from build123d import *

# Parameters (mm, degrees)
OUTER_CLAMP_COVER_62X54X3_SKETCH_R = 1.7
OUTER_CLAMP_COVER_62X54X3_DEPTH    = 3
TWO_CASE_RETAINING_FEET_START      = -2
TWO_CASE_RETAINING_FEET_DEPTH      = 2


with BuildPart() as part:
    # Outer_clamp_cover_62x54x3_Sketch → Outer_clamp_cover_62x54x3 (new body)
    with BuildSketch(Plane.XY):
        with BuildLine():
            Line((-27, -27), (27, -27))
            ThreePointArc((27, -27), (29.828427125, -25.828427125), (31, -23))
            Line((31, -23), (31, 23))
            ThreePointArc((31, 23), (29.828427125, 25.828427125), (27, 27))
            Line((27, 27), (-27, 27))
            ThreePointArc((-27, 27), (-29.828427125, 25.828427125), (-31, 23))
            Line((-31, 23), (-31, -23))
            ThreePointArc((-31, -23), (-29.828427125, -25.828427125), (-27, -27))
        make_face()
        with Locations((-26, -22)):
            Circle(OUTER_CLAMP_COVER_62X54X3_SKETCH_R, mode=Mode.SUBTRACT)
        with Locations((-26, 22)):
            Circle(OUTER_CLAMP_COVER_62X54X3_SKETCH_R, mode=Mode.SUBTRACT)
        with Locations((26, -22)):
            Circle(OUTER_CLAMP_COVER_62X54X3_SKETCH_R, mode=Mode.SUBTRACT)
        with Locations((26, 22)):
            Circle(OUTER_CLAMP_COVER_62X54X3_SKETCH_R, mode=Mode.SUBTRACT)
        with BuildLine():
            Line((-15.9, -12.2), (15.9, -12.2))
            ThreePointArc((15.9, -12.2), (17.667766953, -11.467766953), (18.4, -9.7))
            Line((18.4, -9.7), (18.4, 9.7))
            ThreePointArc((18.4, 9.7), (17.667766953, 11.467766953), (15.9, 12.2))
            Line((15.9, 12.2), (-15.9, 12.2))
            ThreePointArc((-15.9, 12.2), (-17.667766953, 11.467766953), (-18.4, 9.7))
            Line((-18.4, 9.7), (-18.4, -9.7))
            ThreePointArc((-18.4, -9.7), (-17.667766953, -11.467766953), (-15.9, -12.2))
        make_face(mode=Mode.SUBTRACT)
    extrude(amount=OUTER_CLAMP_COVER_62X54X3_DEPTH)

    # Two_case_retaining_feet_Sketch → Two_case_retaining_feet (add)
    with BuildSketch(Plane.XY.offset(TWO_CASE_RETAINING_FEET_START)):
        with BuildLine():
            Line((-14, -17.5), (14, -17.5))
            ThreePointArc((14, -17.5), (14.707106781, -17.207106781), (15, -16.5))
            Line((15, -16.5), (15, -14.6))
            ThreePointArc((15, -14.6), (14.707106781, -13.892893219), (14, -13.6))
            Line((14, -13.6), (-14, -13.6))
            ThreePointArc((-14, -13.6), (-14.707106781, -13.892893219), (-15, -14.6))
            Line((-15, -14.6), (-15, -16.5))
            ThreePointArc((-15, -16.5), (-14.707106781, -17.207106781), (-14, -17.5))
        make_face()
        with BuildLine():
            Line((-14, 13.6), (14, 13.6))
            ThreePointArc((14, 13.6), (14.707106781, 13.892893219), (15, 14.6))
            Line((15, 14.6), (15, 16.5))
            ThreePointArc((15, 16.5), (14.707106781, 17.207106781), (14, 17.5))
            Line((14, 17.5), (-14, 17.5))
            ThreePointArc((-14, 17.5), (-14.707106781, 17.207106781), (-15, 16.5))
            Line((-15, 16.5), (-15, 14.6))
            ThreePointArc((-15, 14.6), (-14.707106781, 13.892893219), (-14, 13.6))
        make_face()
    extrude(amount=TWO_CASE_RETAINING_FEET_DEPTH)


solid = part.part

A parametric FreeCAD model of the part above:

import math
import FreeCAD as App
import Part
import Sketcher

V = App.Vector

doc = App.newDocument("Part")
params = doc.addObject("Spreadsheet::Sheet", "Params")
for row, (alias, value) in enumerate([
    ("sketch1_radius", "4 mm"),
    ("sketch1_diameter", "3.4 mm"),
    ("sketch1_radius2", "2.5 mm"),
    ("sketch1_width", "54 mm"),
    ("sketch1_height", "46 mm"),
    ("pad1_length", "3 mm"),
    ("sketch2_radius", "1 mm"),
    ("sketch2_width", "28 mm"),
    ("sketch2_height", "1.9 mm"),
    ("pad2_length", "2 mm"),
], start=1):
    params.set(f"A{row}", alias)
    params.set(f"B{row}", "=" + value)
    params.setAlias(f"B{row}", alias)

body = doc.addObject("PartDesign::Body", "Body")

# Sketch on XY plane
sketch1 = doc.addObject("Sketcher::SketchObject", "Sketch")
body.addObject(sketch1)
sketch1.AttachmentSupport = (doc.XY_Plane, [""])
sketch1.MapMode = "FlatFace"
sketch1.addGeometry(Part.LineSegment(V(-27, -27, 0), V(27, -27, 0)), False)
sketch1.addGeometry(Part.ArcOfCircle(Part.Circle(V(27, -23, 0), V(0, 0, 1), 4), math.radians(-90), math.radians(0)), False)
sketch1.addGeometry(Part.LineSegment(V(31, -23, 0), V(31, 23, 0)), False)
sketch1.addGeometry(Part.ArcOfCircle(Part.Circle(V(27, 23, 0), V(0, 0, 1), 4), math.radians(0), math.radians(90)), False)
sketch1.addGeometry(Part.LineSegment(V(27, 27, 0), V(-27, 27, 0)), False)
sketch1.addGeometry(Part.ArcOfCircle(Part.Circle(V(-27, 23, 0), V(0, 0, 1), 4), math.radians(90), math.radians(180)), False)
sketch1.addGeometry(Part.LineSegment(V(-31, 23, 0), V(-31, -23, 0)), False)
sketch1.addGeometry(Part.ArcOfCircle(Part.Circle(V(-27, -23, 0), V(0, 0, 1), 4), math.radians(180), math.radians(270)), False)
sketch1.addGeometry(Part.Circle(V(-26, -22, 0), V(0, 0, 1), 1.7), False)
sketch1.addGeometry(Part.LineSegment(V(15.9, -12.2, 0), V(-15.9, -12.2, 0)), False)
sketch1.addGeometry(Part.ArcOfCircle(Part.Circle(V(-15.9, -9.7, 0), V(0, 0, 1), 2.5), math.radians(180), math.radians(270)), False)
sketch1.addGeometry(Part.LineSegment(V(-18.4, -9.7, 0), V(-18.4, 9.7, 0)), False)
sketch1.addGeometry(Part.ArcOfCircle(Part.Circle(V(-15.9, 9.7, 0), V(0, 0, 1), 2.5), math.radians(90), math.radians(180)), False)
sketch1.addGeometry(Part.LineSegment(V(-15.9, 12.2, 0), V(15.9, 12.2, 0)), False)
sketch1.addGeometry(Part.ArcOfCircle(Part.Circle(V(15.9, 9.7, 0), V(0, 0, 1), 2.5), math.radians(0), math.radians(90)), False)
sketch1.addGeometry(Part.LineSegment(V(18.4, 9.7, 0), V(18.4, -9.7, 0)), False)
sketch1.addGeometry(Part.ArcOfCircle(Part.Circle(V(15.9, -9.7, 0), V(0, 0, 1), 2.5), math.radians(-90), math.radians(0)), False)
sketch1.addGeometry(Part.Circle(V(26, -22, 0), V(0, 0, 1), 1.7), False)
sketch1.addGeometry(Part.Circle(V(-26, 22, 0), V(0, 0, 1), 1.7), False)
sketch1.addGeometry(Part.Circle(V(26, 22, 0), V(0, 0, 1), 1.7), False)
sketch1.addConstraint(Sketcher.Constraint("Tangent", 0, 2, 1, 1))
sketch1.addConstraint(Sketcher.Constraint("Tangent", 1, 2, 2, 1))
sketch1.addConstraint(Sketcher.Constraint("Tangent", 2, 2, 3, 1))
sketch1.addConstraint(Sketcher.Constraint("Tangent", 3, 2, 4, 1))
sketch1.addConstraint(Sketcher.Constraint("Tangent", 4, 2, 5, 1))
sketch1.addConstraint(Sketcher.Constraint("Tangent", 5, 2, 6, 1))
sketch1.addConstraint(Sketcher.Constraint("Tangent", 6, 2, 7, 1))
sketch1.addConstraint(Sketcher.Constraint("Tangent", 7, 2, 0, 1))
sketch1.addConstraint(Sketcher.Constraint("Tangent", 9, 2, 10, 2))
sketch1.addConstraint(Sketcher.Constraint("Tangent", 10, 1, 11, 1))
sketch1.addConstraint(Sketcher.Constraint("Tangent", 11, 2, 12, 2))
sketch1.addConstraint(Sketcher.Constraint("Tangent", 12, 1, 13, 1))
sketch1.addConstraint(Sketcher.Constraint("Tangent", 13, 2, 14, 2))
sketch1.addConstraint(Sketcher.Constraint("Tangent", 14, 1, 15, 1))
sketch1.addConstraint(Sketcher.Constraint("Tangent", 15, 2, 16, 2))
sketch1.addConstraint(Sketcher.Constraint("Tangent", 16, 1, 9, 1))
sketch1.addConstraint(Sketcher.Constraint("Horizontal", 0))
sketch1.addConstraint(Sketcher.Constraint("Vertical", 2))
sketch1.addConstraint(Sketcher.Constraint("Horizontal", 4))
sketch1.addConstraint(Sketcher.Constraint("Vertical", 6))
sketch1.addConstraint(Sketcher.Constraint("Horizontal", 9))
sketch1.addConstraint(Sketcher.Constraint("Vertical", 11))
sketch1.addConstraint(Sketcher.Constraint("Horizontal", 13))
sketch1.addConstraint(Sketcher.Constraint("Vertical", 15))
sketch1.addConstraint(Sketcher.Constraint("Equal", 1, 3))
sketch1.addConstraint(Sketcher.Constraint("Equal", 3, 5))
sketch1.addConstraint(Sketcher.Constraint("Equal", 5, 7))
sketch1.addConstraint(Sketcher.Constraint("Equal", 10, 12))
sketch1.addConstraint(Sketcher.Constraint("Equal", 12, 14))
sketch1.addConstraint(Sketcher.Constraint("Equal", 14, 16))
sketch1.addConstraint(Sketcher.Constraint("Equal", 8, 17))
sketch1.addConstraint(Sketcher.Constraint("Equal", 17, 18))
sketch1.addConstraint(Sketcher.Constraint("Equal", 18, 19))
sketch1.addConstraint(Sketcher.Constraint("Symmetric", 1, 3, 5, 3, -1, 1))
sketch1.addConstraint(Sketcher.Constraint("Symmetric", 10, 3, 14, 3, -1, 1))
sketch1.addConstraint(Sketcher.Constraint("Symmetric", 17, 3, 18, 3, -1, 1))
sketch1.addConstraint(Sketcher.Constraint("Symmetric", 8, 3, 19, 3, -1, 1))
sketch1.addConstraint(Sketcher.Constraint("Symmetric", 8, 3, 17, 3, -2))
sketch1.addConstraint(Sketcher.Constraint("Radius", 1, 4.0))
sketch1.addConstraint(Sketcher.Constraint("Diameter", 8, 3.4))
sketch1.addConstraint(Sketcher.Constraint("Radius", 10, 2.5))
sketch1.addConstraint(Sketcher.Constraint("DistanceX", 0, 1, 0, 2, 54.0))
sketch1.addConstraint(Sketcher.Constraint("DistanceY", 2, 1, 2, 2, 46.0))
sketch1.addConstraint(Sketcher.Constraint("DistanceX", 9, 2, 9, 1, 31.8))
sketch1.addConstraint(Sketcher.Constraint("DistanceY", 11, 1, 11, 2, 19.4))
sketch1.addConstraint(Sketcher.Constraint("DistanceX", 8, 3, -1, 1, 26.0))
sketch1.addConstraint(Sketcher.Constraint("DistanceY", 8, 3, -1, 1, 22.0))
sketch1.setExpression("Constraints[38]", "Params.sketch1_radius")
sketch1.setExpression("Constraints[39]", "Params.sketch1_diameter")
sketch1.setExpression("Constraints[40]", "Params.sketch1_radius2")
sketch1.setExpression("Constraints[41]", "Params.sketch1_width")
sketch1.setExpression("Constraints[42]", "Params.sketch1_height")
pad1 = doc.addObject("PartDesign::Pad", "Pad")
body.addObject(pad1)
pad1.Profile = sketch1
pad1.setExpression("Length", "Params.pad1_length")

# Sketch on XY plane
sketch2 = doc.addObject("Sketcher::SketchObject", "Sketch001")
body.addObject(sketch2)
sketch2.AttachmentSupport = (doc.XY_Plane, [""])
sketch2.MapMode = "FlatFace"
sketch2.AttachmentOffset = App.Placement(V(0, 0, -2), App.Rotation())
sketch2.addGeometry(Part.LineSegment(V(-14, -17.5, 0), V(14, -17.5, 0)), False)
sketch2.addGeometry(Part.ArcOfCircle(Part.Circle(V(14, -16.5, 0), V(0, 0, 1), 1), math.radians(-90), math.radians(0)), False)
sketch2.addGeometry(Part.LineSegment(V(15, -16.5, 0), V(15, -14.6, 0)), False)
sketch2.addGeometry(Part.ArcOfCircle(Part.Circle(V(14, -14.6, 0), V(0, 0, 1), 1), math.radians(0), math.radians(90)), False)
sketch2.addGeometry(Part.LineSegment(V(14, -13.6, 0), V(-14, -13.6, 0)), False)
sketch2.addGeometry(Part.ArcOfCircle(Part.Circle(V(-14, -14.6, 0), V(0, 0, 1), 1), math.radians(90), math.radians(180)), False)
sketch2.addGeometry(Part.LineSegment(V(-15, -14.6, 0), V(-15, -16.5, 0)), False)
sketch2.addGeometry(Part.ArcOfCircle(Part.Circle(V(-14, -16.5, 0), V(0, 0, 1), 1), math.radians(-180), math.radians(-90)), False)
sketch2.addGeometry(Part.LineSegment(V(-14, 13.6, 0), V(14, 13.6, 0)), False)
sketch2.addGeometry(Part.ArcOfCircle(Part.Circle(V(14, 14.6, 0), V(0, 0, 1), 1), math.radians(-90), math.radians(0)), False)
sketch2.addGeometry(Part.LineSegment(V(15, 14.6, 0), V(15, 16.5, 0)), False)
sketch2.addGeometry(Part.ArcOfCircle(Part.Circle(V(14, 16.5, 0), V(0, 0, 1), 1), math.radians(0), math.radians(90)), False)
sketch2.addGeometry(Part.LineSegment(V(14, 17.5, 0), V(-14, 17.5, 0)), False)
sketch2.addGeometry(Part.ArcOfCircle(Part.Circle(V(-14, 16.5, 0), V(0, 0, 1), 1), math.radians(90), math.radians(180)), False)
sketch2.addGeometry(Part.LineSegment(V(-15, 16.5, 0), V(-15, 14.6, 0)), False)
sketch2.addGeometry(Part.ArcOfCircle(Part.Circle(V(-14, 14.6, 0), V(0, 0, 1), 1), math.radians(-180), math.radians(-90)), False)
sketch2.addConstraint(Sketcher.Constraint("Tangent", 0, 2, 1, 1))
sketch2.addConstraint(Sketcher.Constraint("Tangent", 1, 2, 2, 1))
sketch2.addConstraint(Sketcher.Constraint("Tangent", 2, 2, 3, 1))
sketch2.addConstraint(Sketcher.Constraint("Tangent", 3, 2, 4, 1))
sketch2.addConstraint(Sketcher.Constraint("Tangent", 4, 2, 5, 1))
sketch2.addConstraint(Sketcher.Constraint("Tangent", 5, 2, 6, 1))
sketch2.addConstraint(Sketcher.Constraint("Tangent", 6, 2, 7, 1))
sketch2.addConstraint(Sketcher.Constraint("Tangent", 7, 2, 0, 1))
sketch2.addConstraint(Sketcher.Constraint("Tangent", 8, 2, 9, 1))
sketch2.addConstraint(Sketcher.Constraint("Tangent", 9, 2, 10, 1))
sketch2.addConstraint(Sketcher.Constraint("Tangent", 10, 2, 11, 1))
sketch2.addConstraint(Sketcher.Constraint("Tangent", 11, 2, 12, 1))
sketch2.addConstraint(Sketcher.Constraint("Tangent", 12, 2, 13, 1))
sketch2.addConstraint(Sketcher.Constraint("Tangent", 13, 2, 14, 1))
sketch2.addConstraint(Sketcher.Constraint("Tangent", 14, 2, 15, 1))
sketch2.addConstraint(Sketcher.Constraint("Tangent", 15, 2, 8, 1))
sketch2.addConstraint(Sketcher.Constraint("Horizontal", 0))
sketch2.addConstraint(Sketcher.Constraint("Vertical", 2))
sketch2.addConstraint(Sketcher.Constraint("Horizontal", 4))
sketch2.addConstraint(Sketcher.Constraint("Vertical", 6))
sketch2.addConstraint(Sketcher.Constraint("Horizontal", 8))
sketch2.addConstraint(Sketcher.Constraint("Vertical", 10))
sketch2.addConstraint(Sketcher.Constraint("Horizontal", 12))
sketch2.addConstraint(Sketcher.Constraint("Vertical", 14))
sketch2.addConstraint(Sketcher.Constraint("Equal", 1, 3))
sketch2.addConstraint(Sketcher.Constraint("Equal", 3, 5))
sketch2.addConstraint(Sketcher.Constraint("Equal", 5, 7))
sketch2.addConstraint(Sketcher.Constraint("Equal", 7, 9))
sketch2.addConstraint(Sketcher.Constraint("Equal", 9, 11))
sketch2.addConstraint(Sketcher.Constraint("Equal", 11, 13))
sketch2.addConstraint(Sketcher.Constraint("Equal", 13, 15))
sketch2.addConstraint(Sketcher.Constraint("Symmetric", 5, 3, 9, 3, -1, 1))
sketch2.addConstraint(Sketcher.Constraint("Symmetric", 1, 3, 13, 3, -1, 1))
sketch2.addConstraint(Sketcher.Constraint("Vertical", 3, 3, 9, 3))
sketch2.addConstraint(Sketcher.Constraint("Radius", 1, 1.0))
sketch2.addConstraint(Sketcher.Constraint("DistanceX", 0, 1, 0, 2, 28.0))
sketch2.addConstraint(Sketcher.Constraint("DistanceY", 2, 1, 2, 2, 1.9))
sketch2.addConstraint(Sketcher.Constraint("DistanceY", 1, 3, 11, 3, 33.0))
sketch2.setExpression("Constraints[34]", "Params.sketch2_radius")
sketch2.setExpression("Constraints[35]", "Params.sketch2_width")
sketch2.setExpression("Constraints[36]", "Params.sketch2_height")
pad2 = doc.addObject("PartDesign::Pad", "Pad001")
body.addObject(pad2)
pad2.Profile = sketch2
pad2.setExpression("Length", "Params.pad2_length")

doc.recompute()
